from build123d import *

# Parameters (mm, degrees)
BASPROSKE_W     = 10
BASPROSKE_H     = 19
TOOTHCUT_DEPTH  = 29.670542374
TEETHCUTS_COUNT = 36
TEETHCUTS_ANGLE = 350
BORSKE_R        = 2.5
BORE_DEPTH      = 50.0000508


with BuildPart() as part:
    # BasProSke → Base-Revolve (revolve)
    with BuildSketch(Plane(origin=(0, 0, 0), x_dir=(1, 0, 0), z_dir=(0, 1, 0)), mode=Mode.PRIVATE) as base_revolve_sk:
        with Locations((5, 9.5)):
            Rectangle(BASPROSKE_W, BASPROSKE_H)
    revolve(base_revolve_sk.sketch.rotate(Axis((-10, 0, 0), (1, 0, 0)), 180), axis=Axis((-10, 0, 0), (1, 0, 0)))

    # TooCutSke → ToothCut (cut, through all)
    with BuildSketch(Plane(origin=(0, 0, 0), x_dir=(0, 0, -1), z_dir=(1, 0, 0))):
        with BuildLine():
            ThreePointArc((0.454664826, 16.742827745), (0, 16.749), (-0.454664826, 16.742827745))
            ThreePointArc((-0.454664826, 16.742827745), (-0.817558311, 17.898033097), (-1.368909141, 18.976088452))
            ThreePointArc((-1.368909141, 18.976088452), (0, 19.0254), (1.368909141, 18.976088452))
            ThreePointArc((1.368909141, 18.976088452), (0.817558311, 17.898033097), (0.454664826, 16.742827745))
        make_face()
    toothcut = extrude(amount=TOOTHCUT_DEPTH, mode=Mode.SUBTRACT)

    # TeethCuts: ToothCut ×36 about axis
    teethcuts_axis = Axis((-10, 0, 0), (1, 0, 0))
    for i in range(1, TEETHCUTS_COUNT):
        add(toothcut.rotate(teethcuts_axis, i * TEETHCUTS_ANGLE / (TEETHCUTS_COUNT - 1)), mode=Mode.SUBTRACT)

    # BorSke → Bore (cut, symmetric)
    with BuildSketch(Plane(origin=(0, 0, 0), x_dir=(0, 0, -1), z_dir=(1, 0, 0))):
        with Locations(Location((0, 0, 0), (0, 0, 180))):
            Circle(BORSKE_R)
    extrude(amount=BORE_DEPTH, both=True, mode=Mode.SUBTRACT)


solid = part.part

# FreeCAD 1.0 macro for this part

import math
import FreeCAD as App
import Part
import Sketcher

V = App.Vector
Q = App.Units.Quantity

doc = App.newDocument("Part")
body = doc.addObject("PartDesign::Body", "Body")

# Sketch on XZ plane
sketch1 = body.newObject("Sketcher::SketchObject", "Sketch")
sketch1.AttachmentSupport = (doc.getObject("XZ_Plane"), [""])
sketch1.MapMode = "FlatFace"
sketch1.addGeometry(Part.LineSegment(V(0, -19, 0), V(0, 0, 0)), False)
sketch1.addGeometry(Part.LineSegment(V(0, 0, 0), V(10, 0, 0)), False)
sketch1.addGeometry(Part.LineSegment(V(10, 0, 0), V(10, -19, 0)), False)
sketch1.addGeometry(Part.LineSegment(V(10, -19, 0), V(0, -19, 0)), False)
sketch1.addConstraint(Sketcher.Constraint("Coincident", 0, 2, 1, 1))
sketch1.addConstraint(Sketcher.Constraint("Coincident", 1, 2, 2, 1))
sketch1.addConstraint(Sketcher.Constraint("Coincident", 2, 2, 3, 1))
sketch1.addConstraint(Sketcher.Constraint("Coincident", 3, 2, 0, 1))
sketch1.addConstraint(Sketcher.Constraint("Vertical", 0))
sketch1.addConstraint(Sketcher.Constraint("Horizontal", 1))
sketch1.addConstraint(Sketcher.Constraint("Vertical", 2))
sketch1.addConstraint(Sketcher.Constraint("Horizontal", 3))
sketch1.addConstraint(Sketcher.Constraint("Coincident", 0, 2, -1, 1))
sketch1.addConstraint(Sketcher.Constraint("DistanceX", 1, 1, 1, 2, Q("10 mm")))
sketch1.addConstraint(Sketcher.Constraint("DistanceY", 0, 1, 0, 2, Q("19 mm")))
revolution = body.newObject("PartDesign::Revolution", "Revolution")
revolution.Profile = sketch1
revolution.ReferenceAxis = (sketch1, ["H_Axis"])
revolution.Angle = 360

# Sketch on YZ plane
sketch2 = body.newObject("Sketcher::SketchObject", "Sketch001")
sketch2.AttachmentSupport = (doc.getObject("YZ_Plane"), [""])
sketch2.MapMode = "FlatFace"
sketch2.addGeometry(Part.ArcOfCircle(Part.Circle(V(0, 0, 0), V(0, 0, 1), 16.749), math.radians(-1.55553), math.radians(1.55553)), False)
sketch2.addGeometry(Part.ArcOfCircle(Part.Circle(V(15.170247, -7.480829, 0), V(0, 0, 1), 7.2), math.radians(58.089824), math.radians(77.384103)), False)
sketch2.addGeometry(Part.ArcOfCircle(Part.Circle(V(0, 0, 0), V(0, 0, 1), 19.0254), math.radians(-4.126092), math.radians(4.126092)), False)
sketch2.addGeometry(Part.ArcOfCircle(Part.Circle(V(15.170247, 7.480829, 0), V(0, 0, 1), 7.2), math.radians(-77.384103), math.radians(-58.089824)), False)
sketch2.addConstraint(Sketcher.Constraint("Coincident", 0, 1, 1, 2))
sketch2.addConstraint(Sketcher.Constraint("Coincident", 1, 1, 2, 1))
sketch2.addConstraint(Sketcher.Constraint("Coincident", 2, 2, 3, 2))
sketch2.addConstraint(Sketcher.Constraint("Coincident", 3, 1, 0, 2))
sketch2.addConstraint(Sketcher.Constraint("Coincident", 0, 3, -1, 1))
sketch2.addConstraint(Sketcher.Constraint("Coincident", 2, 3, -1, 1))
sketch2.addConstraint(Sketcher.Constraint("Equal", 1, 3))
sketch2.addConstraint(Sketcher.Constraint("Symmetric", 1, 3, 3, 3, -1))
sketch2.addConstraint(Sketcher.Constraint("Radius", 1, Q("7.2 mm")))
sketch2.addConstraint(Sketcher.Constraint("Radius", 0, Q("16.749 mm")))
sketch2.addConstraint(Sketcher.Constraint("Radius", 2, Q("19.0254 mm")))
sketch2.addConstraint(Sketcher.Constraint("DistanceY", 1, 3, -1, 1, Q("7.480829 mm")))
sketch2.addConstraint(Sketcher.Constraint("DistanceX", -1, 1, 1, 1, Q("18.976088 mm")))
pocket1 = body.newObject("PartDesign::Pocket", "Pocket")
pocket1.Profile = sketch2
pocket1.Type = "ThroughAll"
pocket1.Reversed = True
doc.recompute()

polarpattern = body.newObject("PartDesign::PolarPattern", "PolarPattern")
polarpattern.Originals = [pocket1]
polarpattern.Axis = (doc.getObject("X_Axis"), [""])
polarpattern.Angle = 360
polarpattern.Occurrences = 36
body.Tip = polarpattern

# Sketch on YZ plane
sketch3 = body.newObject("Sketcher::SketchObject", "Sketch002")
sketch3.AttachmentSupport = (doc.getObject("YZ_Plane"), [""])
sketch3.MapMode = "FlatFace"
sketch3.addGeometry(Part.Circle(V(0, 0, 0), V(0, 0, 1), 2.5), False)
sketch3.addConstraint(Sketcher.Constraint("Coincident", 0, 3, -1, 1))
sketch3.addConstraint(Sketcher.Constraint("Diameter", 0, Q("5 mm")))
pocket2 = body.newObject("PartDesign::Pocket", "Pocket001")
pocket2.Profile = sketch3
pocket2.Length = 100.000102
pocket2.Midplane = True

doc.recompute()
